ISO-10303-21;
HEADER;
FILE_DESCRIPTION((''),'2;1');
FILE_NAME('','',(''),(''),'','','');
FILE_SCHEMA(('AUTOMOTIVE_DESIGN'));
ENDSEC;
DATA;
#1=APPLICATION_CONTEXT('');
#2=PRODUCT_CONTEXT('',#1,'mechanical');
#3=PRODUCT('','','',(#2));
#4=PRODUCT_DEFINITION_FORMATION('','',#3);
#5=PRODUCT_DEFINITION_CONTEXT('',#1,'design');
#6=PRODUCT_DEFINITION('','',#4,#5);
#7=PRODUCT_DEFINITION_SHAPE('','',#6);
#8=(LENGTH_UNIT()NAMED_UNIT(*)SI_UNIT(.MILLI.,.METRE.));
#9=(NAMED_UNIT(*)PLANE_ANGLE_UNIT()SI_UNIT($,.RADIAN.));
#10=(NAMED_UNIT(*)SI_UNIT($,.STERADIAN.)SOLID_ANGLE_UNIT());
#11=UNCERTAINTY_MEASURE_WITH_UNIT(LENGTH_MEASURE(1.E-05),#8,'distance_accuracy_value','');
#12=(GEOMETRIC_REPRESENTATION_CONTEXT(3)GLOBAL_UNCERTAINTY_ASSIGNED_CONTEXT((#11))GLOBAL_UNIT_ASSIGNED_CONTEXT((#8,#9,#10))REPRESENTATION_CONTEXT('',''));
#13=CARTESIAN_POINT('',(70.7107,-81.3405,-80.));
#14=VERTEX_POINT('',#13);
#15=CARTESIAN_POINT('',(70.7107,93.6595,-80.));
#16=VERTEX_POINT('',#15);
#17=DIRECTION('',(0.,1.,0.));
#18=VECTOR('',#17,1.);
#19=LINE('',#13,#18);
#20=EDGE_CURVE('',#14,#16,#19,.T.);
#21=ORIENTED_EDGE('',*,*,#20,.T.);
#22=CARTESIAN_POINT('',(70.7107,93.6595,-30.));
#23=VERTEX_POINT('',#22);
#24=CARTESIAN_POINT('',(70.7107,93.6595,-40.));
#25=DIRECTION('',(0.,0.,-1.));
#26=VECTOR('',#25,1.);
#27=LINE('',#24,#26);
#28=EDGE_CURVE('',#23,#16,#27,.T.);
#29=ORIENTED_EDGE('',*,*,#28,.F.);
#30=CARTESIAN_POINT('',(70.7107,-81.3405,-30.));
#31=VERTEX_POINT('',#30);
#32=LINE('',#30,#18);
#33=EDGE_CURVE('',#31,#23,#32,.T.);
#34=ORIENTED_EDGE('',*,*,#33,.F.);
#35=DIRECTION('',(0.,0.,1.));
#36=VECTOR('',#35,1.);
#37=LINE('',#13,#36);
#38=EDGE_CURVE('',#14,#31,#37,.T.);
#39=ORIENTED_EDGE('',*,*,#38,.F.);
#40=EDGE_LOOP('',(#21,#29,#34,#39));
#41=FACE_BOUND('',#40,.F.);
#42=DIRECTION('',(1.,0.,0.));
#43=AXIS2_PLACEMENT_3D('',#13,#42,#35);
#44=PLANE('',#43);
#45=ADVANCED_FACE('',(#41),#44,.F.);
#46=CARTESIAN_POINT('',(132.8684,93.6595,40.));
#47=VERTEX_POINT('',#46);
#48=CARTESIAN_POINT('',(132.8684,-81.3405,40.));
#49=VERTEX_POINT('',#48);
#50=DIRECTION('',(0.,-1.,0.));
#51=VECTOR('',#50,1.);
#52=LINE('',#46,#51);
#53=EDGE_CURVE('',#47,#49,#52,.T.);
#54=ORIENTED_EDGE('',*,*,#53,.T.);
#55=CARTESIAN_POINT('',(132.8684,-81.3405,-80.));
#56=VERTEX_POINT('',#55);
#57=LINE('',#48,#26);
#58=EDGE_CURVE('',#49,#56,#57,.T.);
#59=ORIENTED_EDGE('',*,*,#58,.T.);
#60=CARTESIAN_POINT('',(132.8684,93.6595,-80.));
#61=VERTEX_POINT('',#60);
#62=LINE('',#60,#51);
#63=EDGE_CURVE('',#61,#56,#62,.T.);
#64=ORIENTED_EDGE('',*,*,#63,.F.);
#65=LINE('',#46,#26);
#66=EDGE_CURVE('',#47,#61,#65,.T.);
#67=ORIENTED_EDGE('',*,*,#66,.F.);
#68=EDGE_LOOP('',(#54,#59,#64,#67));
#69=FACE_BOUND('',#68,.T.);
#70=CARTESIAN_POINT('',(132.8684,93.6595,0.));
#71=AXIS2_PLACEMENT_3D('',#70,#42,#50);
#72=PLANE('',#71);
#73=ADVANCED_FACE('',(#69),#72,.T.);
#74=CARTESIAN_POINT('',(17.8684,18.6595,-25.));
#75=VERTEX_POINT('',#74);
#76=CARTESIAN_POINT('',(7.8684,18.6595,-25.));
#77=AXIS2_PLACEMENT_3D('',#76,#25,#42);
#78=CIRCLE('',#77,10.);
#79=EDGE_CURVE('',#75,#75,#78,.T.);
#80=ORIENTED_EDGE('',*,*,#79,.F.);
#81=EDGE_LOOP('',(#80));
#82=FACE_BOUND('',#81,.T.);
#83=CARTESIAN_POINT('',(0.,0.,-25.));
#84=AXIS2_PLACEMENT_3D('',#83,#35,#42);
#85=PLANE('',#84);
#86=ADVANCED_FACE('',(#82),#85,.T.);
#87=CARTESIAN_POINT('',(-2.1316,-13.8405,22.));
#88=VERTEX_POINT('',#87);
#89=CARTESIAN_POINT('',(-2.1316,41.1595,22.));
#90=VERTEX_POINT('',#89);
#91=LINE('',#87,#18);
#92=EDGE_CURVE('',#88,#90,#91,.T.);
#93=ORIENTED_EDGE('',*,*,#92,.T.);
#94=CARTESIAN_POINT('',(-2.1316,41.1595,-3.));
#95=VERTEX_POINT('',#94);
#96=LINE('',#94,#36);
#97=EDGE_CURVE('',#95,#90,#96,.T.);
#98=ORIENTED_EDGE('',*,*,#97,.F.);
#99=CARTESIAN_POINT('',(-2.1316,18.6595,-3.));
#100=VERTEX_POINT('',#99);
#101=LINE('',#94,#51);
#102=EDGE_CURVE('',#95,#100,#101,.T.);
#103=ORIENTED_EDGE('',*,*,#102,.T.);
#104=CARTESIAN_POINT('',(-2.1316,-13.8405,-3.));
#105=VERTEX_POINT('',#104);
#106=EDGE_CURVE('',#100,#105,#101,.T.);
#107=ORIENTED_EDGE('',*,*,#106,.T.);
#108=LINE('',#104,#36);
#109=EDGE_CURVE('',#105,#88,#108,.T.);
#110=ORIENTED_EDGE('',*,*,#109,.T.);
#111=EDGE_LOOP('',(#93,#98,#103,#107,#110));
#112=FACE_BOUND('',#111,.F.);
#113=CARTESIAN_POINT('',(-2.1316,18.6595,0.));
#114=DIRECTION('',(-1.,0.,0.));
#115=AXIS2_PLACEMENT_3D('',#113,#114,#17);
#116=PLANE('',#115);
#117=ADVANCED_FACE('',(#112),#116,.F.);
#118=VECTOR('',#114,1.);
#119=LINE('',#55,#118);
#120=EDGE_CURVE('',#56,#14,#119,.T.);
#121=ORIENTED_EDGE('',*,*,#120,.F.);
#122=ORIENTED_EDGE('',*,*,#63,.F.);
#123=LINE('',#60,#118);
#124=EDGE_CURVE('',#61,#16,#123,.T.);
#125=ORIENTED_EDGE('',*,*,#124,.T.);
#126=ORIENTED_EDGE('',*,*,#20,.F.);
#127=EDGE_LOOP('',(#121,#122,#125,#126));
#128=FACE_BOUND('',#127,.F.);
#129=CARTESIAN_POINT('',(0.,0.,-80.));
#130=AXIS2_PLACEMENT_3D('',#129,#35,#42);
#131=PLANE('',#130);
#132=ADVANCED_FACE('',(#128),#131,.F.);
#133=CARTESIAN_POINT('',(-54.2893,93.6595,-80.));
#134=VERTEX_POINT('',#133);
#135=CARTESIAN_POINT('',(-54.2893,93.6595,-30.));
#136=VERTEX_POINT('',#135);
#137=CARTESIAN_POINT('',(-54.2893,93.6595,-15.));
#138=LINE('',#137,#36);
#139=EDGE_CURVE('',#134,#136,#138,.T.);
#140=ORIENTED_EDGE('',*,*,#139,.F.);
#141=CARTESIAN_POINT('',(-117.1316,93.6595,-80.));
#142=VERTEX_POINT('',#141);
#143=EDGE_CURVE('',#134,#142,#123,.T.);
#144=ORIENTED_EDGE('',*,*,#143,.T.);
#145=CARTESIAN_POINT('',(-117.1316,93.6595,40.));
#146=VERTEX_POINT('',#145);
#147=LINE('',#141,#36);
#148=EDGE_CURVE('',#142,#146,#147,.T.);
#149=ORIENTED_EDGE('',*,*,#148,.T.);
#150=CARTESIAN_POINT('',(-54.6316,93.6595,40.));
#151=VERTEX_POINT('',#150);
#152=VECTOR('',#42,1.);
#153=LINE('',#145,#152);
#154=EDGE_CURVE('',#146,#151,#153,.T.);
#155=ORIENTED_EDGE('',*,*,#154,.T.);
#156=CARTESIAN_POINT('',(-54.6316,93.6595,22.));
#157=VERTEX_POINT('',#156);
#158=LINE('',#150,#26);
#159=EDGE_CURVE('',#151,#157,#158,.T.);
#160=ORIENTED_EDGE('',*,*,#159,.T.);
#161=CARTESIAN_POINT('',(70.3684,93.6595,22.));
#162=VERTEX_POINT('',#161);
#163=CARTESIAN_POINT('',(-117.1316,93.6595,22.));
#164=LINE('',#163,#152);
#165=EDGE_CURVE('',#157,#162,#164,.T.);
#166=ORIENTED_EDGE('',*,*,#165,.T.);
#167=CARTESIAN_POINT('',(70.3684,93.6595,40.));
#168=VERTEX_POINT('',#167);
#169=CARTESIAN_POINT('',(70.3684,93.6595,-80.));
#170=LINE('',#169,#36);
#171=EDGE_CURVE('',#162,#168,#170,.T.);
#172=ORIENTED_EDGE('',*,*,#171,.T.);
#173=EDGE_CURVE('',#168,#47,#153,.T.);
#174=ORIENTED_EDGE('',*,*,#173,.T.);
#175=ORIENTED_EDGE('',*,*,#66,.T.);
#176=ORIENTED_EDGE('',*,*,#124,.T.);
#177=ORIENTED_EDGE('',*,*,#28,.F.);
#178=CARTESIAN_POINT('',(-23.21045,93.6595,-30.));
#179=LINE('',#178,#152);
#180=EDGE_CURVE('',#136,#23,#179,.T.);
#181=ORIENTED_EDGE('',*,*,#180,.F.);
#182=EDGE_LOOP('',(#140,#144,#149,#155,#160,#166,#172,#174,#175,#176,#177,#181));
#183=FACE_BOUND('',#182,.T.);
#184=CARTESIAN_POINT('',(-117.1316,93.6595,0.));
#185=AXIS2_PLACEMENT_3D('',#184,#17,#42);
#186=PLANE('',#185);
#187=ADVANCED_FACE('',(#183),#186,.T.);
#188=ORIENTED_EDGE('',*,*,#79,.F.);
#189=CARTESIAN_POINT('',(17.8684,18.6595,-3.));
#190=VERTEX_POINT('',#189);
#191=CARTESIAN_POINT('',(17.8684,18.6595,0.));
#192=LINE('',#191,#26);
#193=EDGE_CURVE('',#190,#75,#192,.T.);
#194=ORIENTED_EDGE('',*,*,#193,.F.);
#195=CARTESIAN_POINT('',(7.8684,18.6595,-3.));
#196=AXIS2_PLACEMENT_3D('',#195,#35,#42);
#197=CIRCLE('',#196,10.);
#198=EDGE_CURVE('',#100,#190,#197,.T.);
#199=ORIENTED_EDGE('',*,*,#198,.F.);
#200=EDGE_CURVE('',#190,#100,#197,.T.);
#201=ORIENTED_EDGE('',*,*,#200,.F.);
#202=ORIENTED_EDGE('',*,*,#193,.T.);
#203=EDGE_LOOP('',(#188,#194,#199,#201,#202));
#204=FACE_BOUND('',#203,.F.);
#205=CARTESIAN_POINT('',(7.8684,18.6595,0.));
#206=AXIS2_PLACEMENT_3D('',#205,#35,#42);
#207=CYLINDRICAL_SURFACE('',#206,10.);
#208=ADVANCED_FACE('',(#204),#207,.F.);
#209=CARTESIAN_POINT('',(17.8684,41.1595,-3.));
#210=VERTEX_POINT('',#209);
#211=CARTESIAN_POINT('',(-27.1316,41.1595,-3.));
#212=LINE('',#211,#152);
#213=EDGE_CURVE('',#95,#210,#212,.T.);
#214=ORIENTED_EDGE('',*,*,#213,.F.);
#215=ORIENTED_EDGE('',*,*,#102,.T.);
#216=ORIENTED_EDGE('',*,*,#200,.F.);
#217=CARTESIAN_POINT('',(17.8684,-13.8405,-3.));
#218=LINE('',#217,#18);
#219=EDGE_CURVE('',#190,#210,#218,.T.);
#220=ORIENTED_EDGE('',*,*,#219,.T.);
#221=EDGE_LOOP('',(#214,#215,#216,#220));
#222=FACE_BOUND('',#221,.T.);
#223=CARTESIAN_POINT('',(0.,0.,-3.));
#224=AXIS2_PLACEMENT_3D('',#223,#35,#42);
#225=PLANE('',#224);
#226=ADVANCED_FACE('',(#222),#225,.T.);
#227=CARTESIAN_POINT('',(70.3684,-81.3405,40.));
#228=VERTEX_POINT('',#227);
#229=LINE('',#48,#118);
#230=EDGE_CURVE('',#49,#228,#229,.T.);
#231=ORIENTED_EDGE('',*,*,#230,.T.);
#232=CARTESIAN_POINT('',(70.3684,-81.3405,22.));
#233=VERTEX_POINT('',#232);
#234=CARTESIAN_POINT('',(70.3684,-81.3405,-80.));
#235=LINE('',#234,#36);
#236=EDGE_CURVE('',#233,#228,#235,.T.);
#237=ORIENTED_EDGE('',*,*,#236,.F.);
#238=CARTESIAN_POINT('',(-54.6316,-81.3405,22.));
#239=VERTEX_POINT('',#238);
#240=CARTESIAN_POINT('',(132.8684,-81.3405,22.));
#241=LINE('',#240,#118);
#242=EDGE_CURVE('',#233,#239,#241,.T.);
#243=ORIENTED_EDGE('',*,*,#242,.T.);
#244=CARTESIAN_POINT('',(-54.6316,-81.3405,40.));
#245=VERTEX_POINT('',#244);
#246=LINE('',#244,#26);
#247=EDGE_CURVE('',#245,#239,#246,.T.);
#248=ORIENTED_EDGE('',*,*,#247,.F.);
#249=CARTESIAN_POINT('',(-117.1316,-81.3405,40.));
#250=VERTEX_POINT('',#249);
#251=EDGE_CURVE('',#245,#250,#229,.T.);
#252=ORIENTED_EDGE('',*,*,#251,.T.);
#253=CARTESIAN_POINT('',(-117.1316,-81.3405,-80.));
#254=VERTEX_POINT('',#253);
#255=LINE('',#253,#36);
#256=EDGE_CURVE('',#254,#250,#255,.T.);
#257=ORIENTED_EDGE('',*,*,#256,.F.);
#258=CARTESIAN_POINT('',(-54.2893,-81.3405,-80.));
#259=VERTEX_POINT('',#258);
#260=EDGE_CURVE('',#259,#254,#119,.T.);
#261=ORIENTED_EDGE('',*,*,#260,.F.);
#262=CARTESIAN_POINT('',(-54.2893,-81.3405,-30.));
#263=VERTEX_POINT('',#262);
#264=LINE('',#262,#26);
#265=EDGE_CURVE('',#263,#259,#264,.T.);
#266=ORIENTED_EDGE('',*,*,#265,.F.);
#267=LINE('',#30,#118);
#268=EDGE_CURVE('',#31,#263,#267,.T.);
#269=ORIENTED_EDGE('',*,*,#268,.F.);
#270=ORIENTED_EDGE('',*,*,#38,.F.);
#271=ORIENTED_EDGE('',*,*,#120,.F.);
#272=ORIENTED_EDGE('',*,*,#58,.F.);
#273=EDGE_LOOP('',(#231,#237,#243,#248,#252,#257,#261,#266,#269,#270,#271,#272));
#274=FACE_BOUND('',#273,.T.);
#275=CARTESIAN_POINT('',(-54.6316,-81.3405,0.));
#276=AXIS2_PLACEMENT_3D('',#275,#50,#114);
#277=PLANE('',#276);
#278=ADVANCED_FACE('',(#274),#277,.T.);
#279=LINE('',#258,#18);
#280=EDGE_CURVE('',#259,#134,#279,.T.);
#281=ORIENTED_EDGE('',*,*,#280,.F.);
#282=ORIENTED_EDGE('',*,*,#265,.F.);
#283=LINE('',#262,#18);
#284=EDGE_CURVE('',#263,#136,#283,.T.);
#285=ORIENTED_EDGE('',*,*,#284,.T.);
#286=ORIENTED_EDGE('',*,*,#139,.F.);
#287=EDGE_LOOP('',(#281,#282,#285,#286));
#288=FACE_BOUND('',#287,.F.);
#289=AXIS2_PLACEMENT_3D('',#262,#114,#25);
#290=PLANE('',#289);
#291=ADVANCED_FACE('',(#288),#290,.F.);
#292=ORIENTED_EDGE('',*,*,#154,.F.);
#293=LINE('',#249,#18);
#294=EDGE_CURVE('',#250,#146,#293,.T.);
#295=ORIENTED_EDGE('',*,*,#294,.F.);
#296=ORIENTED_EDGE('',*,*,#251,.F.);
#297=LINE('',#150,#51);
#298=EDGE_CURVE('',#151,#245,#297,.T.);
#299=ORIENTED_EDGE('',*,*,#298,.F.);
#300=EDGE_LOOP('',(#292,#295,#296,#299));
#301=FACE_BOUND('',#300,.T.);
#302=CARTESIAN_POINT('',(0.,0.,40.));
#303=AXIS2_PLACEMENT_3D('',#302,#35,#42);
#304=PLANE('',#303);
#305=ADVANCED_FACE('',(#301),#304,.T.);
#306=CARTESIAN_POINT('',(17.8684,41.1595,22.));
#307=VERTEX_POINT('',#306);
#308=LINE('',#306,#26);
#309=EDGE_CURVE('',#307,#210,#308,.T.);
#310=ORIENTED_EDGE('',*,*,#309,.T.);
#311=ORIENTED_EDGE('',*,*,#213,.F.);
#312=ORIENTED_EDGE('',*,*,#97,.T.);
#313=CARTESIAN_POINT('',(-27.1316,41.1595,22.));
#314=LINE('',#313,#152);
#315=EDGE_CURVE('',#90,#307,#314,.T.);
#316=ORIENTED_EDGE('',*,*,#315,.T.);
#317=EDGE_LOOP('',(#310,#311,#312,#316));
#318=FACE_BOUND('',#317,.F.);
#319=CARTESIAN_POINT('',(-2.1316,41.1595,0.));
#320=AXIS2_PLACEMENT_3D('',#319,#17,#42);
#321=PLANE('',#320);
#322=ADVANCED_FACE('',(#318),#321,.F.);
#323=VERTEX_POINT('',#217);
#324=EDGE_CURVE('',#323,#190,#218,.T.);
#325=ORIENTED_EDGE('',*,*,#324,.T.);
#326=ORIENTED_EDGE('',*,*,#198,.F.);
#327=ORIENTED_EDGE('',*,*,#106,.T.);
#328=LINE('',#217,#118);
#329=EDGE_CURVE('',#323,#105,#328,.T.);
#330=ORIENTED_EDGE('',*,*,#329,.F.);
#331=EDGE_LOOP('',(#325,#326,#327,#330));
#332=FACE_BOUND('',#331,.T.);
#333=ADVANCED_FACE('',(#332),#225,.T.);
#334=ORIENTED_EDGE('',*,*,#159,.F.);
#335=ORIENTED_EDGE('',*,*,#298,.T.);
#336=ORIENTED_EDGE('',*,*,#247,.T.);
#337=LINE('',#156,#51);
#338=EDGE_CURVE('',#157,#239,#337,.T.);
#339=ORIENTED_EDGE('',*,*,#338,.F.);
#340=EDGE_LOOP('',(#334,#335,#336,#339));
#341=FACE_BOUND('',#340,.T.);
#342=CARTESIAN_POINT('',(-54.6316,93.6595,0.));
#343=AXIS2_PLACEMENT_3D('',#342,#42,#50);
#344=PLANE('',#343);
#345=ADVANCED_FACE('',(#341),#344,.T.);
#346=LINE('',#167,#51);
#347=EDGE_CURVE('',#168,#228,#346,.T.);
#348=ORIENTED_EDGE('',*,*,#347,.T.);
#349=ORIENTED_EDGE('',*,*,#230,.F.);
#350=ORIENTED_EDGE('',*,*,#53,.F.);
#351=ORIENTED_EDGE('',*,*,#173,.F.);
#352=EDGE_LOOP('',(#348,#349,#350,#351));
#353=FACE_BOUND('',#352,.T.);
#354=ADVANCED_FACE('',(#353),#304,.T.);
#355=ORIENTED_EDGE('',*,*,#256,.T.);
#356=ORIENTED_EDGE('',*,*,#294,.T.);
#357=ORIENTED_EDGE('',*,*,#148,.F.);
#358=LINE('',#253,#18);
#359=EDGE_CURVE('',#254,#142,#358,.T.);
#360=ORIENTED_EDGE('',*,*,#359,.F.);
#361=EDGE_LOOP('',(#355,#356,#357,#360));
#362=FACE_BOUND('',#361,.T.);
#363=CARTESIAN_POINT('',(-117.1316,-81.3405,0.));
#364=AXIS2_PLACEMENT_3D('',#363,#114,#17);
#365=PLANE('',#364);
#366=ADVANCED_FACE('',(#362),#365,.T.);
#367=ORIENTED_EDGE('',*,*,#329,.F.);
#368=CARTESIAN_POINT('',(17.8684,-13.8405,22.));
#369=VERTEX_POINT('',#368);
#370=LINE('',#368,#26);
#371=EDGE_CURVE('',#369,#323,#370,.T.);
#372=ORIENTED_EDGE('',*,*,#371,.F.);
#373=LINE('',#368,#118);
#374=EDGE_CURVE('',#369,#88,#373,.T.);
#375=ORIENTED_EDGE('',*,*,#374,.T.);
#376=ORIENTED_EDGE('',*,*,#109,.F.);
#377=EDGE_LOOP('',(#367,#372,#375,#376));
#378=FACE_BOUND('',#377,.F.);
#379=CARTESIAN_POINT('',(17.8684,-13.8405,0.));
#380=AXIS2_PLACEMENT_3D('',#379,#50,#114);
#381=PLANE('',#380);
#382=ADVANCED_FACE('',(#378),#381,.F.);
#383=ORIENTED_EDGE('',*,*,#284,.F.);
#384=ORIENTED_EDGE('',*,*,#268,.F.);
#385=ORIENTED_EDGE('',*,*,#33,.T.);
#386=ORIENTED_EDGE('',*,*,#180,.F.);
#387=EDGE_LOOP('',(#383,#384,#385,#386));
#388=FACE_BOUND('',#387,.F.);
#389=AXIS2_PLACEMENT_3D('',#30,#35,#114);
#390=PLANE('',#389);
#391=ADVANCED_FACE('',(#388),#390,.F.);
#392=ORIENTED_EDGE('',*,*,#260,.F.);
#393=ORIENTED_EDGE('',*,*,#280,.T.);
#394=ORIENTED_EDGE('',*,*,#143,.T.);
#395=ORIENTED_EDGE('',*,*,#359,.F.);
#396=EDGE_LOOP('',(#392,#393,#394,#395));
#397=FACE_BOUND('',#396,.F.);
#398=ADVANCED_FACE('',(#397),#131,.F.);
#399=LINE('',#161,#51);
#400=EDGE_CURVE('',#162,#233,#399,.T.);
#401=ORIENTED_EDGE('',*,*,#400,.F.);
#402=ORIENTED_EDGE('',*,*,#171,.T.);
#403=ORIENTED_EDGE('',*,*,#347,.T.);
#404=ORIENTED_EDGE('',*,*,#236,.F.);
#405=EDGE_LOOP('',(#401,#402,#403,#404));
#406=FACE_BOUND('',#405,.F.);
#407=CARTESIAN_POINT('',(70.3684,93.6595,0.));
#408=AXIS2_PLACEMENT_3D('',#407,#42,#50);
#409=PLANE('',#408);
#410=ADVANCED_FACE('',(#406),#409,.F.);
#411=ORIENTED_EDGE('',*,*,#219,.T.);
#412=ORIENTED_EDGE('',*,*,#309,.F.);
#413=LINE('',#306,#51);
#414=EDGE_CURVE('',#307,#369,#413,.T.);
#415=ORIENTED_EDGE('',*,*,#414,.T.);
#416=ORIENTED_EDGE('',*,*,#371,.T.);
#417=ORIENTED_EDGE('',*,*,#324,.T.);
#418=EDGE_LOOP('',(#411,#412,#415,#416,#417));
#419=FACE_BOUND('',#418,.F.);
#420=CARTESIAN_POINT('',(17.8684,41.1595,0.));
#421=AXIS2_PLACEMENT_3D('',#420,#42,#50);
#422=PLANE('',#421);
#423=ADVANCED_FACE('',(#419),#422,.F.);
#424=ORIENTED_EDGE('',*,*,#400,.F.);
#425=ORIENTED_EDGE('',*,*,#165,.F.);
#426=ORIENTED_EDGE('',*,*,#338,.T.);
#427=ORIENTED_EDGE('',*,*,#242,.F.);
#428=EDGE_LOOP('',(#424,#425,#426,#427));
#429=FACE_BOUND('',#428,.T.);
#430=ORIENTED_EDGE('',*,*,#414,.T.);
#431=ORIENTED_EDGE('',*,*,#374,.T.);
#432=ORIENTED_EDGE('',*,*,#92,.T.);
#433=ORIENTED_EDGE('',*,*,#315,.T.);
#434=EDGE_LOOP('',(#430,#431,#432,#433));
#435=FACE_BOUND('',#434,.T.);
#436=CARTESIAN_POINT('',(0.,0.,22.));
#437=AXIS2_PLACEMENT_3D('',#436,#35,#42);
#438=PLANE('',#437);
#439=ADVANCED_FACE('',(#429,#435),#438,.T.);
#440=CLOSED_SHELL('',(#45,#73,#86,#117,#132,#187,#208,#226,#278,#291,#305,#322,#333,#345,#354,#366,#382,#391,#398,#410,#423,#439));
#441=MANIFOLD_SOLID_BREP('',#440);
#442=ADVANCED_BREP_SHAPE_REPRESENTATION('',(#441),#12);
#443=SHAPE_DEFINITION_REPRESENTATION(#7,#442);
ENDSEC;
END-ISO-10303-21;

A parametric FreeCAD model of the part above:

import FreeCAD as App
import Part
import Sketcher
from FreeCAD import Vector
Q = App.Units.Quantity


def add_polygon(sketch, points):
    """Adds a closed chain of lines whose ends are joined by coincident constraints."""
    first, n = sketch.GeometryCount, len(points)
    for a, b in zip(points, points[1:] + points[:1]):
        sketch.addGeometry(Part.LineSegment(App.Vector(*a, 0), App.Vector(*b, 0)), False)
    for i in range(n):
        sketch.addConstraint(Sketcher.Constraint("Coincident", first + i, 2, first + (i + 1) % n, 1))

doc = App.newDocument("Part")
body = doc.addObject("PartDesign::Body", "Body")
body.AllowCompound = True

# Sketch on XY plane
sketch1 = body.newObject("Sketcher::SketchObject", "Sketch")
sketch1.AttachmentSupport = (doc.getObject("XY_Plane"), [""])
sketch1.MapMode = "FlatFace"
add_polygon(sketch1, [(-54.6316, 93.6595), (-117.1316, 93.6595), (-117.1316, -81.3405), (-54.6316, -81.3405)])  # lines 0-3
add_polygon(sketch1, [(132.8684, 93.6595), (70.3684, 93.6595), (70.3684, -81.3405), (132.8684, -81.3405)])  # lines 4-7
sketch1.addConstraint([
    Sketcher.Constraint("Horizontal", 0),
    Sketcher.Constraint("Vertical", 1),
    Sketcher.Constraint("Horizontal", 2),
    Sketcher.Constraint("Vertical", 3),
    Sketcher.Constraint("Horizontal", 4),
    Sketcher.Constraint("Vertical", 5),
    Sketcher.Constraint("Horizontal", 6),
    Sketcher.Constraint("Vertical", 7),
    Sketcher.Constraint("Horizontal", 3, 2, 4, 2),
    Sketcher.Constraint("Horizontal", 2, 2, 5, 2),
    Sketcher.Constraint("Equal", 2, 4),
    Sketcher.Constraint("DistanceY", 1, 2, 1, 1, Q("175 mm")),
    Sketcher.Constraint("DistanceX", 0, 2, 0, 1, Q("62.5 mm")),
    Sketcher.Constraint("DistanceX", 1, 2, 6, 2, Q("250 mm")),
    Sketcher.Constraint("DistanceX", 0, 2, -1, 1, Q("117.1316 mm")),
    Sketcher.Constraint("DistanceY", -1, 1, 0, 2, Q("93.6595 mm")),
])
pad1 = body.newObject("PartDesign::Pad", "Pad")
pad1.Profile = sketch1
pad1.Type = "TwoLengths"
pad1.Length = 40
pad1.Length2 = 80

# Sketch on XY plane
sketch2 = body.newObject("Sketcher::SketchObject", "Sketch001")
sketch2.AttachmentSupport = (doc.getObject("XY_Plane"), [""])
sketch2.MapMode = "FlatFace"
add_polygon(sketch2, [(70.3684, 93.6595), (-54.6316, 93.6595), (-54.6316, -81.3405), (70.3684, -81.3405)])  # lines 0-3
sketch2.addConstraint([
    Sketcher.Constraint("Horizontal", 0),
    Sketcher.Constraint("Vertical", 1),
    Sketcher.Constraint("Horizontal", 2),
    Sketcher.Constraint("Vertical", 3),
    Sketcher.Constraint("DistanceY", 1, 2, 1, 1, Q("175 mm")),
    Sketcher.Constraint("DistanceX", 0, 2, 0, 1, Q("125 mm")),
    Sketcher.Constraint("DistanceX", 0, 2, -1, 1, Q("54.6316 mm")),
    Sketcher.Constraint("DistanceY", -1, 1, 0, 2, Q("93.6595 mm")),
])
pad2 = body.newObject("PartDesign::Pad", "Pad001")
pad2.Profile = sketch2
pad2.Type = "TwoLengths"
pad2.Length = 22
pad2.Length2 = 80

# Sketch on XY plane
sketch3 = body.newObject("Sketcher::SketchObject", "Sketch002")
sketch3.AttachmentSupport = (doc.getObject("XY_Plane"), [""])
sketch3.MapMode = "FlatFace"
add_polygon(sketch3, [(17.8684, 41.1595), (-2.1316, 41.1595), (-2.1316, -13.8405), (17.8684, -13.8405)])  # lines 0-3
sketch3.addConstraint([
    Sketcher.Constraint("Horizontal", 0),
    Sketcher.Constraint("Vertical", 1),
    Sketcher.Constraint("Horizontal", 2),
    Sketcher.Constraint("Vertical", 3),
    Sketcher.Constraint("DistanceX", 0, 2, 0, 1, Q("20 mm")),
    Sketcher.Constraint("DistanceY", 1, 2, 1, 1, Q("55 mm")),
    Sketcher.Constraint("DistanceX", 0, 2, -1, 1, Q("2.1316 mm")),
    Sketcher.Constraint("DistanceY", -1, 1, 0, 2, Q("41.1595 mm")),
])
pocket1 = body.newObject("PartDesign::Pocket", "Pocket")
pocket1.Profile = sketch3
pocket1.Type = "TwoLengths"
pocket1.Length = 22
pocket1.Length2 = 3
pocket1.Reversed = True

# Sketch on XY plane
sketch4 = body.newObject("Sketcher::SketchObject", "Sketch003")
sketch4.AttachmentSupport = (doc.getObject("XY_Plane"), [""])
sketch4.MapMode = "FlatFace"
sketch4.addGeometry(Part.Circle(Vector(7.8684, 18.6595, 0), Vector(0, 0, 1), 10), False)
sketch4.addConstraint([
    Sketcher.Constraint("Diameter", 0, Q("20 mm")),
    Sketcher.Constraint("DistanceX", -1, 1, 0, 3, Q("7.8684 mm")),
    Sketcher.Constraint("DistanceY", -1, 1, 0, 3, Q("18.6595 mm")),
])
pocket2 = body.newObject("PartDesign::Pocket", "Pocket001")
pocket2.Profile = sketch4
pocket2.Length = 25

# Sketch on XZ plane
sketch5 = body.newObject("Sketcher::SketchObject", "Sketch004")
sketch5.AttachmentSupport = (doc.getObject("XZ_Plane"), [""])
sketch5.MapMode = "FlatFace"
sketch5.AttachmentOffset = App.Placement(Vector(0, 0, 81.3405), App.Rotation())
add_polygon(sketch5, [(-54.2893, -30), (-54.2893, -80), (70.7107, -80), (70.7107, -30)])  # lines 0-3
sketch5.addConstraint([
    Sketcher.Constraint("Vertical", 0),
    Sketcher.Constraint("Horizontal", 1),
    Sketcher.Constraint("Vertical", 2),
    Sketcher.Constraint("Horizontal", 3),
    Sketcher.Constraint("DistanceX", 1, 1, 1, 2, Q("125 mm")),
    Sketcher.Constraint("DistanceY", 0, 2, 0, 1, Q("50 mm")),
    Sketcher.Constraint("DistanceY", 0, 2, -1, 1, Q("80 mm")),
    Sketcher.Constraint("DistanceX", 0, 2, -1, 1, Q("54.2893 mm")),
])
pocket3 = body.newObject("PartDesign::Pocket", "Pocket002")
pocket3.Profile = sketch5
pocket3.Type = "ThroughAll"

doc.recompute()
